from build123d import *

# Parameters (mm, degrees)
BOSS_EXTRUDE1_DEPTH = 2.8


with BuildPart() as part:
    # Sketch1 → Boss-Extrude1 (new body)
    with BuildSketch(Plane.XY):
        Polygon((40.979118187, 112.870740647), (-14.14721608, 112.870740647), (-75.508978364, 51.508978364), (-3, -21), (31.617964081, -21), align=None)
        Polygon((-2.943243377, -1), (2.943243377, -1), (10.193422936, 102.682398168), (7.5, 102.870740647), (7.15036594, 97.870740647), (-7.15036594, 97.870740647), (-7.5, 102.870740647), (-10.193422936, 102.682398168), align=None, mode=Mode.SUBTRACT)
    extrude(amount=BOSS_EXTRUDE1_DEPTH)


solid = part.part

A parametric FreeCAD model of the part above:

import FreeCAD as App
import Part
import Sketcher

V = App.Vector
Q = App.Units.Quantity


def add_polygon(sketch, points):
    """Adds a closed chain of lines whose ends are joined by coincident constraints."""
    first, n = sketch.GeometryCount, len(points)
    for a, b in zip(points, points[1:] + points[:1]):
        sketch.addGeometry(Part.LineSegment(App.Vector(*a, 0), App.Vector(*b, 0)), False)
    for i in range(n):
        sketch.addConstraint(Sketcher.Constraint("Coincident", first + i, 2, first + (i + 1) % n, 1))

doc = App.newDocument("Part")
body = doc.addObject("PartDesign::Body", "Body")

# Sketch on XY plane
sketch1 = body.newObject("Sketcher::SketchObject", "Sketch")
sketch1.AttachmentSupport = (doc.getObject("XY_Plane"), [""])
sketch1.MapMode = "FlatFace"
add_polygon(sketch1, [(41, 112.9), (-14.1, 112.9), (-75.5, 51.5), (-3, -21), (31.6, -21)])  # lines 0-4
add_polygon(sketch1, [(2.9, -1), (-2.9, -1), (-10.2, 102.7), (-7.5, 102.9), (-7.2, 97.9), (7.2, 97.9), (7.5, 102.9), (10.2, 102.7)])  # lines 5-12
sketch1.addConstraint([
    Sketcher.Constraint("Horizontal", 0),
    Sketcher.Constraint("Horizontal", 3),
    Sketcher.Constraint("Horizontal", 5),
    Sketcher.Constraint("Horizontal", 9),
    Sketcher.Constraint("Symmetric", 7, 2, 10, 2, -2),
    Sketcher.Constraint("Symmetric", 6, 2, 11, 2, -2),
    Sketcher.Constraint("Perpendicular", 1, 2),
    Sketcher.Constraint("Perpendicular", 6, 7),
    Sketcher.Constraint("Perpendicular", 7, 8),
    Sketcher.Constraint("Parallel", 4, 10),
    Sketcher.Constraint("Perpendicular", 10, 11),
    Sketcher.Constraint("Perpendicular", 11, 12),
    Sketcher.Constraint("Angle", 1, Q("-135 deg")),
    Sketcher.Constraint("Angle", 4, Q("86 deg")),
    Sketcher.Constraint("DistanceX", 2, 2, -1, 1, Q("3 mm")),
    Sketcher.Constraint("DistanceY", 2, 2, -1, 1, Q("21 mm")),
    Sketcher.Constraint("DistanceY", 5, 2, -1, 1, Q("1 mm")),
    Sketcher.Constraint("DistanceY", 7, 2, 0, 2, Q("10 mm")),
    Sketcher.Constraint("DistanceY", 8, 2, 7, 2, Q("5 mm")),
    Sketcher.Constraint("DistanceX", 7, 2, 10, 2, Q("15 mm")),
    Sketcher.Constraint("Distance", 7, Q("2.7 mm")),
    Sketcher.Constraint("DistanceY", -1, 1, 6, 2, Q("102.682398 mm")),
    Sketcher.Constraint("Distance", 2, Q("102.543181 mm")),
    Sketcher.Constraint("DistanceX", 0, 2, 0, 1, Q("55.126334 mm")),
])
pad1 = body.newObject("PartDesign::Pad", "Pad")
pad1.Profile = sketch1
pad1.Length = 2.8

doc.recompute()
